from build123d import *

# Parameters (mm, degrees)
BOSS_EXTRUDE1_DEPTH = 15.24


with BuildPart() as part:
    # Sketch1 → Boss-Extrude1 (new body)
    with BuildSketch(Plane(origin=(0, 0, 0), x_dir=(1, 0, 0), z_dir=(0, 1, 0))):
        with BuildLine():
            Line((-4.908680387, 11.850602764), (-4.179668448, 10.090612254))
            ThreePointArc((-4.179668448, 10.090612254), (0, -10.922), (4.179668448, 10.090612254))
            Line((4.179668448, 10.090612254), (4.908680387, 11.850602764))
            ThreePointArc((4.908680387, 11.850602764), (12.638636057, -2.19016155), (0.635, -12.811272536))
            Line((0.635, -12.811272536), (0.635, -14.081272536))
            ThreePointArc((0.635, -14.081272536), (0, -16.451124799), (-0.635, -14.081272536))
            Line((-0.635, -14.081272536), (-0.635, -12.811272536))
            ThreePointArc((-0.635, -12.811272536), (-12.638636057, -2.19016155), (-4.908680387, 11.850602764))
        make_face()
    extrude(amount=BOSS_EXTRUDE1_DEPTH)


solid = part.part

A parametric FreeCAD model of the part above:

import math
import FreeCAD as App
import Part
import Sketcher
from FreeCAD import Vector
Q = App.Units.Quantity

doc = App.newDocument("Part")
body = doc.addObject("PartDesign::Body", "Body")

sketch1 = doc.addObject("Sketcher::SketchObject", "Sketch")
body.addObject(sketch1)
sketch1.AttachmentSupport = (doc.XZ_Plane, [""])
sketch1.MapMode = "FlatFace"
sketch1.addGeometry([
    Part.LineSegment(Vector(-4.2, -10.1, 0), Vector(-4.9, -11.9, 0)),
    Part.ArcOfCircle(Part.Circle(Vector(0, 0, 0), Vector(0, 0, 1), 12.8), math.radians(93), math.radians(248)),
    Part.LineSegment(Vector(-0.6, 12.8, 0), Vector(-0.6, 14.1, 0)),
    Part.ArcOfCircle(Part.Circle(Vector(0, 15.2, 0), Vector(0, 0, 1), 1.3), math.radians(-60), math.radians(240)),
    Part.LineSegment(Vector(0.6, 14.1, 0), Vector(0.6, 12.8, 0)),
    Part.ArcOfCircle(Part.Circle(Vector(0, 0, 0), Vector(0, 0, 1), 12.8), math.radians(-68), math.radians(87)),
    Part.LineSegment(Vector(4.9, -11.9, 0), Vector(4.2, -10.1, 0)),
    Part.ArcOfCircle(Part.Circle(Vector(0, 0, 0), Vector(0, 0, 1), 10.9), math.radians(-68), math.radians(248)),
], False)
sketch1.addConstraint([
    Sketcher.Constraint("Coincident", 0, 2, 1, 2),
    Sketcher.Constraint("Coincident", 1, 1, 2, 1),
    Sketcher.Constraint("Coincident", 2, 2, 3, 2),
    Sketcher.Constraint("Coincident", 3, 1, 4, 1),
    Sketcher.Constraint("Coincident", 4, 2, 5, 2),
    Sketcher.Constraint("Coincident", 5, 1, 6, 1),
    Sketcher.Constraint("Coincident", 6, 2, 7, 1),
    Sketcher.Constraint("Coincident", 7, 2, 0, 1),
    Sketcher.Constraint("Vertical", 2),
    Sketcher.Constraint("Vertical", 4),
    Sketcher.Constraint("Coincident", 1, 3, -1, 1),
    Sketcher.Constraint("Coincident", 5, 3, -1, 1),
    Sketcher.Constraint("Coincident", 7, 3, -1, 1),
    Sketcher.Constraint("Equal", 1, 5),
    Sketcher.Constraint("Symmetric", 2, 2, 3, 1, -2),
    Sketcher.Constraint("Horizontal", 0, 2, 5, 1),
    Sketcher.Constraint("Horizontal", 6, 2, 7, 2),
    Sketcher.Constraint("Radius", 3, Q("0.05 in")),
    Sketcher.Constraint("Radius", 7, Q("0.43 in")),
    Sketcher.Constraint("Radius", 1, Q("0.505 in")),
    Sketcher.Constraint("DistanceY", 2, 1, 2, 2, Q("0.05 in")),
    Sketcher.Constraint("Angle", 0, Q("-112.5 deg")),
    Sketcher.Constraint("DistanceX", 2, 2, 3, 1, Q("0.05 in")),
    Sketcher.Constraint("DistanceX", 0, 2, -1, 1, 4.90868),
])
pad1 = doc.addObject("PartDesign::Pad", "Pad")
body.addObject(pad1)
pad1.Profile = sketch1
pad1.Length = Q("0.6 in")
pad1.Reversed = True

doc.recompute()
